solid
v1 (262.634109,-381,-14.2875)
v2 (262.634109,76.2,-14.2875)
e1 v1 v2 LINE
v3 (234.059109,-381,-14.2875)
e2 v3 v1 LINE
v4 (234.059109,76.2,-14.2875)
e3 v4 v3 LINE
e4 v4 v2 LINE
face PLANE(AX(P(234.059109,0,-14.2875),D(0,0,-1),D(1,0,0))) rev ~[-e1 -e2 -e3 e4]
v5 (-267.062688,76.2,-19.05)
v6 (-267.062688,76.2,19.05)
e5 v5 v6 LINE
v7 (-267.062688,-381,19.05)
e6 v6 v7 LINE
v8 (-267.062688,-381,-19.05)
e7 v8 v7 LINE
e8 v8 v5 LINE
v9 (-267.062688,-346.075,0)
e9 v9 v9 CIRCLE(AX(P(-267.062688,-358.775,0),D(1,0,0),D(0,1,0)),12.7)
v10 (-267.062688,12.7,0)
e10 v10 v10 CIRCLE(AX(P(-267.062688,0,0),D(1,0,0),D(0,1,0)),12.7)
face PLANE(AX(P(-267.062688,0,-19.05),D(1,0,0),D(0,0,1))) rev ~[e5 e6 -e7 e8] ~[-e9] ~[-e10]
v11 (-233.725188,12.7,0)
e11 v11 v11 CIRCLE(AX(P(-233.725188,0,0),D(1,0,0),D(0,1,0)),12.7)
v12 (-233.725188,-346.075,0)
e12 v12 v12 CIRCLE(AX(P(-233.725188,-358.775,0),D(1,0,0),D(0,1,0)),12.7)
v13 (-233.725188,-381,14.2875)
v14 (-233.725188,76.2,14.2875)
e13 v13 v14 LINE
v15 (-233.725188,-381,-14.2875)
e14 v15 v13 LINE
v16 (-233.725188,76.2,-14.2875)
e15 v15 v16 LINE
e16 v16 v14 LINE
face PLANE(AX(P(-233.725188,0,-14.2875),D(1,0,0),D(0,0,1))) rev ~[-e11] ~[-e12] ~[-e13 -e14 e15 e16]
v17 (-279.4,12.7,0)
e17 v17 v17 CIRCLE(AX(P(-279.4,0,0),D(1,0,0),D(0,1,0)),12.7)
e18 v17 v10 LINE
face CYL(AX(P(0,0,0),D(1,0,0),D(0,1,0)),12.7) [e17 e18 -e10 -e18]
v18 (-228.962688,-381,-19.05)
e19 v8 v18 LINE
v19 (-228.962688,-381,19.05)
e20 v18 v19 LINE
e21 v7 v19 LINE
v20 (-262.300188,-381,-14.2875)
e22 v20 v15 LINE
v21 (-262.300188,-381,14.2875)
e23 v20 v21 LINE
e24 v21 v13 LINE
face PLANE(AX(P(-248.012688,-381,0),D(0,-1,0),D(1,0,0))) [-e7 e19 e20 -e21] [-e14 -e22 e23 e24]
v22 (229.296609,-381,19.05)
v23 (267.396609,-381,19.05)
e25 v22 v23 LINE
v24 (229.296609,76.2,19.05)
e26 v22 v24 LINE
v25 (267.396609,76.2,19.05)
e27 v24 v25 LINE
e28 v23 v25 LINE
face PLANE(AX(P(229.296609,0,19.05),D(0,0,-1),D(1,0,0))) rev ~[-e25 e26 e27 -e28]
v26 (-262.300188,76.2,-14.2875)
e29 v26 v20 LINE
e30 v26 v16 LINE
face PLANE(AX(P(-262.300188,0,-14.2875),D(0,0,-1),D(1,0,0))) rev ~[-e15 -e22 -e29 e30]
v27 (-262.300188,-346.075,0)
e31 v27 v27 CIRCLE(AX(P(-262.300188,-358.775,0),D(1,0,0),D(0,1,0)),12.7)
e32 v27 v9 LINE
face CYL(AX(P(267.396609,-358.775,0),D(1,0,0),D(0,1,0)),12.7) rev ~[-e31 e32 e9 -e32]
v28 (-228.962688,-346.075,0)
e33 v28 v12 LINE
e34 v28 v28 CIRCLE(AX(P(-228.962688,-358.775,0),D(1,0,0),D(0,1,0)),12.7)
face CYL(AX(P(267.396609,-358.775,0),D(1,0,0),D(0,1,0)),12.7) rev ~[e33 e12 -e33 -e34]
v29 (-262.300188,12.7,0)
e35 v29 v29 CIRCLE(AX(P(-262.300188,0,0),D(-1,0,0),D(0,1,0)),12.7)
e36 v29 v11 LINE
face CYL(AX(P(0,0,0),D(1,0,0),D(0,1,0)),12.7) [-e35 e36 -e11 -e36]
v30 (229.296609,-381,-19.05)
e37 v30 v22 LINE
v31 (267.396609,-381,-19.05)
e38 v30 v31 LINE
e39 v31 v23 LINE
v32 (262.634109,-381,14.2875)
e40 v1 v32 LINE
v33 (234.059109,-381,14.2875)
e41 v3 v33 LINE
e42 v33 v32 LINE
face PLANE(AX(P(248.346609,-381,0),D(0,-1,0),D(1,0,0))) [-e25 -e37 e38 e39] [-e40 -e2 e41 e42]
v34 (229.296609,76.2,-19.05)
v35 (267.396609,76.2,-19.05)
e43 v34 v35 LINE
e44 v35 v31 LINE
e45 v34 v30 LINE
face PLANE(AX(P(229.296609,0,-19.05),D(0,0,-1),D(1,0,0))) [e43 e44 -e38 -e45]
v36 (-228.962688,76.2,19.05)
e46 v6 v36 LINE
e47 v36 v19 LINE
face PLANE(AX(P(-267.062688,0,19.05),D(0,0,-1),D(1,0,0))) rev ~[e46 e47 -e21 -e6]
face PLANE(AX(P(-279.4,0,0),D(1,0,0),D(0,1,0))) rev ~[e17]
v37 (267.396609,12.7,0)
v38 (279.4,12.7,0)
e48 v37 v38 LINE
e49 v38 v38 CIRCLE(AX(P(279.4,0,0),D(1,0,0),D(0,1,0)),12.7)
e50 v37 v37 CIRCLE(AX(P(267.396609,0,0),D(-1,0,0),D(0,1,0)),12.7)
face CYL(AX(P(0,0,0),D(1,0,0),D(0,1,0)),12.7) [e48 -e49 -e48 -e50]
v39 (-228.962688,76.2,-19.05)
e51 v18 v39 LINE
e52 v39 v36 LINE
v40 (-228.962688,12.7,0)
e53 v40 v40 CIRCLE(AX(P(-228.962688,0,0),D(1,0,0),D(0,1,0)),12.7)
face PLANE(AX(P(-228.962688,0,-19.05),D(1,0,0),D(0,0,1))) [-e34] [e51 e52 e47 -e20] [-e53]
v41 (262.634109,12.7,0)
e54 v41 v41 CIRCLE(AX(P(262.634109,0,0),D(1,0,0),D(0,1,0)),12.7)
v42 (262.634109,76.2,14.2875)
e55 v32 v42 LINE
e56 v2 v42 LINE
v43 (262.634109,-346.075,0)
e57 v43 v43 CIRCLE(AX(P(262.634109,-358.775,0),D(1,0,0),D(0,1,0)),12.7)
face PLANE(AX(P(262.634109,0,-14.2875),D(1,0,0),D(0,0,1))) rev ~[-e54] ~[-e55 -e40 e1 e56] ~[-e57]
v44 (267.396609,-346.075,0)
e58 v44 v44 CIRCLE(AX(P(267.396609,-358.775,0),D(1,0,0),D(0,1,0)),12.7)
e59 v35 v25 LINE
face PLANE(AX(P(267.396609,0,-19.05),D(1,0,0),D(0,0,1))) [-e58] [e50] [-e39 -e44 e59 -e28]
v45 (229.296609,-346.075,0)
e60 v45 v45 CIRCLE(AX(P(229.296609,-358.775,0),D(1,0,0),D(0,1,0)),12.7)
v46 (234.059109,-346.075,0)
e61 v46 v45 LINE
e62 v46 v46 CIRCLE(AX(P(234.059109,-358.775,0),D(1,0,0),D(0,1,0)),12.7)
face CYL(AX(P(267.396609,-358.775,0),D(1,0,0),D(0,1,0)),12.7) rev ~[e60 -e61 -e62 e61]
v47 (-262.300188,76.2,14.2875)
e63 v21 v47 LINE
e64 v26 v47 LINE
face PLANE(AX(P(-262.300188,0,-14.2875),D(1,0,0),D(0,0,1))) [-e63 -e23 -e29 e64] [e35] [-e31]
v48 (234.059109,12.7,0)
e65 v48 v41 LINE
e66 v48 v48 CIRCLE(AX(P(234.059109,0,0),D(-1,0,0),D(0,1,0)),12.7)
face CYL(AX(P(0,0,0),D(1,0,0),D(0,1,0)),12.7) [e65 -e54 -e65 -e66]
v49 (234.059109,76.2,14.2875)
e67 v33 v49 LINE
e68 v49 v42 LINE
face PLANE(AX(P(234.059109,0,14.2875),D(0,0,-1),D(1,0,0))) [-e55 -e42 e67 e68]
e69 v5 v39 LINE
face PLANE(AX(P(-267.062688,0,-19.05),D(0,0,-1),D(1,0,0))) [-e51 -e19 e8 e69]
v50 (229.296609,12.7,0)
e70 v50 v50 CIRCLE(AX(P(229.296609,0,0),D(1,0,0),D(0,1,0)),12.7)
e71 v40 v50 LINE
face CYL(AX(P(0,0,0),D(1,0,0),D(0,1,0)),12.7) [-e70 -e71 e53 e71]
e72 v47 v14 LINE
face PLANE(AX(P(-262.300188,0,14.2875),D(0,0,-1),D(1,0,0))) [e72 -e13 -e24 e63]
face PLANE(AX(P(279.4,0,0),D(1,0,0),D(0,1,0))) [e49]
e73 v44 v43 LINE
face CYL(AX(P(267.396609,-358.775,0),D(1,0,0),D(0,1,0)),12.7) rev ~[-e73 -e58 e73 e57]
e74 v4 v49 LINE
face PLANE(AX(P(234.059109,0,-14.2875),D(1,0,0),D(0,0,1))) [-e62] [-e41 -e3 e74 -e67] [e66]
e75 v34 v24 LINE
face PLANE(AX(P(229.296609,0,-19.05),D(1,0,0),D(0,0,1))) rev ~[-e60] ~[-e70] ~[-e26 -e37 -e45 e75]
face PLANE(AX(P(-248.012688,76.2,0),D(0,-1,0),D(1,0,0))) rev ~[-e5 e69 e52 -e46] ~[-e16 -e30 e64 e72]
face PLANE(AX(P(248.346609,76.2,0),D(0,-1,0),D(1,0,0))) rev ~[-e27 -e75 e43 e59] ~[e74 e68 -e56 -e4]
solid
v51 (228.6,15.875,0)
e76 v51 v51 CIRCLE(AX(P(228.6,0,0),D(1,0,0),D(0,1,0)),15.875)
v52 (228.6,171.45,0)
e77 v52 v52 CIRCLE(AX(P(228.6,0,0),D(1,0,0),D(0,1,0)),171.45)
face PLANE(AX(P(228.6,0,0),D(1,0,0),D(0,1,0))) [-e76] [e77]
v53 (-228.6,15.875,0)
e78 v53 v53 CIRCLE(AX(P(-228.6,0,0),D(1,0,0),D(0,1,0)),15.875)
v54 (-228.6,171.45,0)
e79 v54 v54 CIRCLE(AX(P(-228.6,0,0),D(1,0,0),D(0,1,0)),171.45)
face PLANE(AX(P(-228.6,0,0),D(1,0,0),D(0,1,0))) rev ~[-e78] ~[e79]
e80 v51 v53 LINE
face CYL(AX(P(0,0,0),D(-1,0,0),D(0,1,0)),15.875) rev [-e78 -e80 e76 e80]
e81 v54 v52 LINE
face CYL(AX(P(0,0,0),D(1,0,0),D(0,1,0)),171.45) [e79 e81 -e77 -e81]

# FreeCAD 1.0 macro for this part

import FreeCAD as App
import Part
import Sketcher
Q = App.Units.Quantity


def add_polygon(sketch, points):
    """Adds a closed chain of lines whose ends are joined by coincident constraints."""
    first, n = sketch.GeometryCount, len(points)
    for a, b in zip(points, points[1:] + points[:1]):
        sketch.addGeometry(Part.LineSegment(App.Vector(*a, 0), App.Vector(*b, 0)), False)
    for i in range(n):
        sketch.addConstraint(Sketcher.Constraint("Coincident", first + i, 2, first + (i + 1) % n, 1))

doc = App.newDocument("Part")
params = doc.addObject("Spreadsheet::Sheet", "Params")
for row, (alias, value) in enumerate([
    ("sketch1_diameter", "13.5 in"),
    ("sketch1_diameter2", "1.25 in"),
    ("pad1_length", "18 in"),
    ("sketch2_diameter", "1 in"),
    ("pad2_length", "22 in"),
    ("sketch3_width", "1.5 in"),
    ("sketch3_width2", "1.125 in"),
    ("pad3_length", "15 in"),
    ("pad3_length2", "3 in"),
    ("sketch4_diameter", "1 in"),
], start=1):
    params.set(f"A{row}", alias)
    params.set(f"B{row}", "=" + value)
    params.setAlias(f"B{row}", alias)

body = doc.addObject("PartDesign::Body", "Body")

sketch1 = doc.addObject("Sketcher::SketchObject", "Sketch")
body.addObject(sketch1)
sketch1.AttachmentSupport = (doc.YZ_Plane, [""])
sketch1.MapMode = "FlatFace"
sketch1.addGeometry([
    Part.Circle(App.Vector(0, 0, 0), App.Vector(0, 0, 1), 171),
    Part.Circle(App.Vector(0, 0, 0), App.Vector(0, 0, 1), 16),
], False)
sketch1.addConstraint([
    Sketcher.Constraint("Coincident", 0, 3, -1, 1),
    Sketcher.Constraint("Coincident", 1, 3, -1, 1),
    Sketcher.Constraint("Diameter", 0, Q("13.5 in")),
    Sketcher.Constraint("Diameter", 1, Q("1.25 in")),
])
sketch1.setExpression("Constraints[2]", "Params.sketch1_diameter")
sketch1.setExpression("Constraints[3]", "Params.sketch1_diameter2")
pad1 = doc.addObject("PartDesign::Pad", "Pad")
body.addObject(pad1)
pad1.Profile = sketch1
pad1.setExpression("Length", "Params.pad1_length")
pad1.Midplane = True
body2 = doc.addObject("PartDesign::Body", "Body001")

sketch2 = doc.addObject("Sketcher::SketchObject", "Sketch001")
body2.addObject(sketch2)
sketch2.AttachmentSupport = (doc.getObject("YZ_Plane001"), [""])
sketch2.MapMode = "FlatFace"
sketch2.addGeometry(Part.Circle(App.Vector(0, 0, 0), App.Vector(0, 0, 1), 13), False)
sketch2.addConstraint([
    Sketcher.Constraint("Coincident", 0, 3, -1, 1),
    Sketcher.Constraint("Diameter", 0, Q("1 in")),
])
sketch2.setExpression("Constraints[1]", "Params.sketch2_diameter")
pad2 = doc.addObject("PartDesign::Pad", "Pad001")
body2.addObject(pad2)
pad2.Profile = sketch2
pad2.setExpression("Length", "Params.pad2_length")
pad2.Midplane = True

sketch3 = doc.addObject("Sketcher::SketchObject", "Sketch002")
body2.addObject(sketch3)
sketch3.AttachmentSupport = (doc.getObject("XZ_Plane001"), [""])
sketch3.MapMode = "FlatFace"
add_polygon(sketch3, [(229, 19), (229, -19), (267, -19), (267, 19)])
add_polygon(sketch3, [(263, -14), (234, -14), (234, 14), (263, 14)])
add_polygon(sketch3, [(-267, 19), (-267, -19), (-229, -19), (-229, 19)])
add_polygon(sketch3, [(-234, -14), (-262, -14), (-262, 14), (-234, 14)])
sketch3.addConstraint([
    Sketcher.Constraint("Vertical", 0),
    Sketcher.Constraint("Horizontal", 1),
    Sketcher.Constraint("Vertical", 2),
    Sketcher.Constraint("Horizontal", 3),
    Sketcher.Constraint("Horizontal", 4),
    Sketcher.Constraint("Vertical", 5),
    Sketcher.Constraint("Horizontal", 6),
    Sketcher.Constraint("Vertical", 7),
    Sketcher.Constraint("Vertical", 8),
    Sketcher.Constraint("Horizontal", 9),
    Sketcher.Constraint("Vertical", 10),
    Sketcher.Constraint("Horizontal", 11),
    Sketcher.Constraint("Horizontal", 12),
    Sketcher.Constraint("Vertical", 13),
    Sketcher.Constraint("Horizontal", 14),
    Sketcher.Constraint("Vertical", 15),
    Sketcher.Constraint("Horizontal", 1, 2, 8, 2),
    Sketcher.Constraint("Horizontal", 3, 2, 10, 2),
    Sketcher.Constraint("Horizontal", 7, 2, 12, 2),
    Sketcher.Constraint("Horizontal", 6, 2, 13, 2),
    Sketcher.Constraint("Equal", 3, 9),
    Sketcher.Constraint("Equal", 6, 12),
    Sketcher.Constraint("Equal", 11, 0),
    Sketcher.Constraint("Equal", 14, 5),
    Sketcher.Constraint("DistanceX", 1, 1, 1, 2, Q("1.5 in")),
    Sketcher.Constraint("DistanceX", 4, 2, 4, 1, Q("1.125 in")),
    Sketcher.Constraint("DistanceY", 0, 2, -1, 1, Q("0.75 in")),
    Sketcher.Constraint("DistanceY", 4, 2, -1, 1, Q("0.5625 in")),
    Sketcher.Constraint("DistanceX", 0, 2, 4, 2, Q("0.1875 in")),
    Sketcher.Constraint("DistanceX", 8, 2, 12, 2, Q("0.1875 in")),
    Sketcher.Constraint("DistanceX", -1, 1, 0, 2, Q("229.296609 mm")),
    Sketcher.Constraint("DistanceX", 8, 2, -1, 1, Q("267.062688 mm")),
])
sketch3.setExpression("Constraints[40]", "Params.sketch3_width")
sketch3.setExpression("Constraints[41]", "Params.sketch3_width2")
pad3 = doc.addObject("PartDesign::Pad", "Pad002")
body2.addObject(pad3)
pad3.Profile = sketch3
pad3.Type = "TwoLengths"
pad3.setExpression("Length", "Params.pad3_length")
pad3.setExpression("Length2", "Params.pad3_length2")

sketch4 = doc.addObject("Sketcher::SketchObject", "Sketch003")
body2.addObject(sketch4)
sketch4.AttachmentSupport = (doc.getObject("YZ_Plane001"), [""])
sketch4.MapMode = "FlatFace"
sketch4.AttachmentOffset = App.Placement(App.Vector(0, 0, 267.396609), App.Rotation())
sketch4.addGeometry(Part.Circle(App.Vector(-359, 0, 0), App.Vector(0, 0, 1), 13), False)
sketch4.addConstraint([
    Sketcher.Constraint("PointOnObject", 0, 3, -1),
    Sketcher.Constraint("Diameter", 0, Q("1 in")),
    Sketcher.Constraint("DistanceX", 0, 3, -1, 1, Q("14.125 in")),
])
sketch4.setExpression("Constraints[1]", "Params.sketch4_diameter")
pocket1 = doc.addObject("PartDesign::Pocket", "Pocket")
body2.addObject(pocket1)
pocket1.Profile = sketch4
pocket1.Type = "ThroughAll"

doc.recompute()
